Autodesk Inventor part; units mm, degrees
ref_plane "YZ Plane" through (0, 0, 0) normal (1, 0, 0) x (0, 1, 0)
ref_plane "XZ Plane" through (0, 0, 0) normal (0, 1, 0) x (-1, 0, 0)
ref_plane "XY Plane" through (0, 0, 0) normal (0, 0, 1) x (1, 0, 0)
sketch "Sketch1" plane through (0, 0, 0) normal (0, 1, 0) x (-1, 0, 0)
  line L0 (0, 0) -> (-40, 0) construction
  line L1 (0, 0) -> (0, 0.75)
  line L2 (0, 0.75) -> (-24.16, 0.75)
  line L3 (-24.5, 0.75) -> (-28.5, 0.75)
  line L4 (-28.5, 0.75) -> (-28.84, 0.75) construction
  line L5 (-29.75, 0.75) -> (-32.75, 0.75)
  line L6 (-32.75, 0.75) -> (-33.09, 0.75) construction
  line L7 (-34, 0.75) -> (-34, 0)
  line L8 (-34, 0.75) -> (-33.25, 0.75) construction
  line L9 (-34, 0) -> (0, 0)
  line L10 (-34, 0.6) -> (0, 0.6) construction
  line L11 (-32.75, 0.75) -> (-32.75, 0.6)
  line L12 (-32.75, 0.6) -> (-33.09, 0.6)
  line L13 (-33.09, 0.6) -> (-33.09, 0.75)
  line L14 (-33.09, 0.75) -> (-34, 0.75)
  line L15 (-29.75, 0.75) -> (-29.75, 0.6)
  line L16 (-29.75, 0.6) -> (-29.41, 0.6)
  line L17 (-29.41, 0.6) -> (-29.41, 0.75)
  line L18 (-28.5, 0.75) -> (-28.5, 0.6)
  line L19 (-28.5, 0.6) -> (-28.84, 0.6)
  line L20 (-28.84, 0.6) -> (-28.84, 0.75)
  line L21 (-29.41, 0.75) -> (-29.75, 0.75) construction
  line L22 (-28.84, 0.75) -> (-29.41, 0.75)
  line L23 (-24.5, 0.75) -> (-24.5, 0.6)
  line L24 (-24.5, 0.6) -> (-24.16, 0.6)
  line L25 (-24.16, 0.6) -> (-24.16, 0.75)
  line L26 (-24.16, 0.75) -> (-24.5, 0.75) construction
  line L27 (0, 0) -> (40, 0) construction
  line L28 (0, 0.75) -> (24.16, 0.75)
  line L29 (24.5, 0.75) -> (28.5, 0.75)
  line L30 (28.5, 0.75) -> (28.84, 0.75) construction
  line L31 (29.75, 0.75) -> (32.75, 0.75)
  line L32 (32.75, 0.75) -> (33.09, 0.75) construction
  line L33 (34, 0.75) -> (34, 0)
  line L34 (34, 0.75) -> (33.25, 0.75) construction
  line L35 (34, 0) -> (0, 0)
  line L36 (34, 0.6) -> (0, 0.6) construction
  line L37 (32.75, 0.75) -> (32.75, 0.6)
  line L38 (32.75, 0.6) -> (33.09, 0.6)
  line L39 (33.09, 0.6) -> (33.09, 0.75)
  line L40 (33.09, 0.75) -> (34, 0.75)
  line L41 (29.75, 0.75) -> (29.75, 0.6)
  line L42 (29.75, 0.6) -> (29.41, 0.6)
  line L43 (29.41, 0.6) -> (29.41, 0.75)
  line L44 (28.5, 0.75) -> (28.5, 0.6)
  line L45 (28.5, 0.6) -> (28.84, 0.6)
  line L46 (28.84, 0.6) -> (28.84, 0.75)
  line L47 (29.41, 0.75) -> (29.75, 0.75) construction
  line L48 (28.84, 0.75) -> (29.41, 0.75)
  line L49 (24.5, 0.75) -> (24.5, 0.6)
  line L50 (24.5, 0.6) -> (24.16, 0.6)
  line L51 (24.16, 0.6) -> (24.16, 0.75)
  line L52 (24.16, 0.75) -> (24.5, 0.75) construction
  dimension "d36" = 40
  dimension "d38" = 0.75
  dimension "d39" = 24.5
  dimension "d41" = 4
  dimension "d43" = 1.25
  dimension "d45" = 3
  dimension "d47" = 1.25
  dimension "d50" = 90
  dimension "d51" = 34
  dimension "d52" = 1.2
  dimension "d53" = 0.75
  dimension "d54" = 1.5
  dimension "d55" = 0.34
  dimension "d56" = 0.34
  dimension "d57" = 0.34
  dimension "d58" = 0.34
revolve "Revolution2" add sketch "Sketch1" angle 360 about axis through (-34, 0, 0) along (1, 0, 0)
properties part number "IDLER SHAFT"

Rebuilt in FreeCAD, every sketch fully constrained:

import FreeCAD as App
import Part
import Sketcher
from FreeCAD import Vector

doc = App.newDocument("Part")
params = doc.addObject("Spreadsheet::Sheet", "Params")
for row, (alias, value) in enumerate([
    ("sketch1_width", "3 mm"),
    ("sketch1_width2", "4 mm"),
    ("sketch1_width3", "0.34 mm"),
    ("sketch1_height", "0.75 mm"),
    ("sketch1_height2", "0.15 mm"),
    ("revolution_angle", "360 deg"),
], start=1):
    params.set(f"A{row}", alias)
    params.set(f"B{row}", "=" + value)
    params.setAlias(f"B{row}", alias)

body = doc.addObject("PartDesign::Body", "Body")

sketch1 = doc.addObject("Sketcher::SketchObject", "Sketch")
body.addObject(sketch1)
sketch1.AttachmentSupport = (doc.XZ_Plane, [""])
sketch1.MapMode = "FlatFace"
sketch1.addGeometry([
    Part.LineSegment(Vector(34, 0, 0), Vector(-34, 0, 0)),
    Part.LineSegment(Vector(-34, 0, 0), Vector(-34, 0.75, 0)),
    Part.LineSegment(Vector(-34, 0.75, 0), Vector(-33.09, 0.75, 0)),
    Part.LineSegment(Vector(-33.09, 0.75, 0), Vector(-33.09, 0.6, 0)),
    Part.LineSegment(Vector(-33.09, 0.6, 0), Vector(-32.75, 0.6, 0)),
    Part.LineSegment(Vector(-32.75, 0.6, 0), Vector(-32.75, 0.75, 0)),
    Part.LineSegment(Vector(-32.75, 0.75, 0), Vector(-29.75, 0.75, 0)),
    Part.LineSegment(Vector(-29.75, 0.75, 0), Vector(-29.75, 0.6, 0)),
    Part.LineSegment(Vector(-29.75, 0.6, 0), Vector(-29.41, 0.6, 0)),
    Part.LineSegment(Vector(-29.41, 0.6, 0), Vector(-29.41, 0.75, 0)),
    Part.LineSegment(Vector(-29.41, 0.75, 0), Vector(-28.84, 0.75, 0)),
    Part.LineSegment(Vector(-28.84, 0.75, 0), Vector(-28.84, 0.6, 0)),
    Part.LineSegment(Vector(-28.84, 0.6, 0), Vector(-28.5, 0.6, 0)),
    Part.LineSegment(Vector(-28.5, 0.6, 0), Vector(-28.5, 0.75, 0)),
    Part.LineSegment(Vector(-28.5, 0.75, 0), Vector(-24.5, 0.75, 0)),
    Part.LineSegment(Vector(-24.5, 0.75, 0), Vector(-24.5, 0.6, 0)),
    Part.LineSegment(Vector(-24.5, 0.6, 0), Vector(-24.16, 0.6, 0)),
    Part.LineSegment(Vector(-24.16, 0.6, 0), Vector(-24.16, 0.75, 0)),
    Part.LineSegment(Vector(-24.16, 0.75, 0), Vector(24.16, 0.75, 0)),
    Part.LineSegment(Vector(24.16, 0.75, 0), Vector(24.16, 0.6, 0)),
    Part.LineSegment(Vector(24.16, 0.6, 0), Vector(24.5, 0.6, 0)),
    Part.LineSegment(Vector(24.5, 0.6, 0), Vector(24.5, 0.75, 0)),
    Part.LineSegment(Vector(24.5, 0.75, 0), Vector(28.5, 0.75, 0)),
    Part.LineSegment(Vector(28.5, 0.75, 0), Vector(28.5, 0.6, 0)),
    Part.LineSegment(Vector(28.5, 0.6, 0), Vector(28.84, 0.6, 0)),
    Part.LineSegment(Vector(28.84, 0.6, 0), Vector(28.84, 0.75, 0)),
    Part.LineSegment(Vector(28.84, 0.75, 0), Vector(29.41, 0.75, 0)),
    Part.LineSegment(Vector(29.41, 0.75, 0), Vector(29.41, 0.6, 0)),
    Part.LineSegment(Vector(29.41, 0.6, 0), Vector(29.75, 0.6, 0)),
    Part.LineSegment(Vector(29.75, 0.6, 0), Vector(29.75, 0.75, 0)),
    Part.LineSegment(Vector(29.75, 0.75, 0), Vector(32.75, 0.75, 0)),
    Part.LineSegment(Vector(32.75, 0.75, 0), Vector(32.75, 0.6, 0)),
    Part.LineSegment(Vector(32.75, 0.6, 0), Vector(33.09, 0.6, 0)),
    Part.LineSegment(Vector(33.09, 0.6, 0), Vector(33.09, 0.75, 0)),
    Part.LineSegment(Vector(33.09, 0.75, 0), Vector(34, 0.75, 0)),
    Part.LineSegment(Vector(34, 0.75, 0), Vector(34, 0, 0)),
], False)
sketch1.addConstraint([
    Sketcher.Constraint("Coincident", 0, 2, 1, 1),
    Sketcher.Constraint("Coincident", 1, 2, 2, 1),
    Sketcher.Constraint("Coincident", 2, 2, 3, 1),
    Sketcher.Constraint("Coincident", 3, 2, 4, 1),
    Sketcher.Constraint("Coincident", 4, 2, 5, 1),
    Sketcher.Constraint("Coincident", 5, 2, 6, 1),
    Sketcher.Constraint("Coincident", 6, 2, 7, 1),
    Sketcher.Constraint("Coincident", 7, 2, 8, 1),
    Sketcher.Constraint("Coincident", 8, 2, 9, 1),
    Sketcher.Constraint("Coincident", 9, 2, 10, 1),
    Sketcher.Constraint("Coincident", 10, 2, 11, 1),
    Sketcher.Constraint("Coincident", 11, 2, 12, 1),
    Sketcher.Constraint("Coincident", 12, 2, 13, 1),
    Sketcher.Constraint("Coincident", 13, 2, 14, 1),
    Sketcher.Constraint("Coincident", 14, 2, 15, 1),
    Sketcher.Constraint("Coincident", 15, 2, 16, 1),
    Sketcher.Constraint("Coincident", 16, 2, 17, 1),
    Sketcher.Constraint("Coincident", 17, 2, 18, 1),
    Sketcher.Constraint("Coincident", 18, 2, 19, 1),
    Sketcher.Constraint("Coincident", 19, 2, 20, 1),
    Sketcher.Constraint("Coincident", 20, 2, 21, 1),
    Sketcher.Constraint("Coincident", 21, 2, 22, 1),
    Sketcher.Constraint("Coincident", 22, 2, 23, 1),
    Sketcher.Constraint("Coincident", 23, 2, 24, 1),
    Sketcher.Constraint("Coincident", 24, 2, 25, 1),
    Sketcher.Constraint("Coincident", 25, 2, 26, 1),
    Sketcher.Constraint("Coincident", 26, 2, 27, 1),
    Sketcher.Constraint("Coincident", 27, 2, 28, 1),
    Sketcher.Constraint("Coincident", 28, 2, 29, 1),
    Sketcher.Constraint("Coincident", 29, 2, 30, 1),
    Sketcher.Constraint("Coincident", 30, 2, 31, 1),
    Sketcher.Constraint("Coincident", 31, 2, 32, 1),
    Sketcher.Constraint("Coincident", 32, 2, 33, 1),
    Sketcher.Constraint("Coincident", 33, 2, 34, 1),
    Sketcher.Constraint("Coincident", 34, 2, 35, 1),
    Sketcher.Constraint("Coincident", 35, 2, 0, 1),
    Sketcher.Constraint("Horizontal", 0),
    Sketcher.Constraint("Vertical", 1),
    Sketcher.Constraint("Horizontal", 2),
    Sketcher.Constraint("Vertical", 3),
    Sketcher.Constraint("Horizontal", 4),
    Sketcher.Constraint("Vertical", 5),
    Sketcher.Constraint("Horizontal", 6),
    Sketcher.Constraint("Vertical", 7),
    Sketcher.Constraint("Horizontal", 8),
    Sketcher.Constraint("Vertical", 9),
    Sketcher.Constraint("Horizontal", 10),
    Sketcher.Constraint("Vertical", 11),
    Sketcher.Constraint("Horizontal", 12),
    Sketcher.Constraint("Vertical", 13),
    Sketcher.Constraint("Horizontal", 14),
    Sketcher.Constraint("Vertical", 15),
    Sketcher.Constraint("Horizontal", 16),
    Sketcher.Constraint("Vertical", 17),
    Sketcher.Constraint("Horizontal", 18),
    Sketcher.Constraint("Vertical", 19),
    Sketcher.Constraint("Horizontal", 20),
    Sketcher.Constraint("Vertical", 21),
    Sketcher.Constraint("Horizontal", 22),
    Sketcher.Constraint("Vertical", 23),
    Sketcher.Constraint("Horizontal", 24),
    Sketcher.Constraint("Vertical", 25),
    Sketcher.Constraint("Horizontal", 26),
    Sketcher.Constraint("Vertical", 27),
    Sketcher.Constraint("Horizontal", 28),
    Sketcher.Constraint("Vertical", 29),
    Sketcher.Constraint("Horizontal", 30),
    Sketcher.Constraint("Vertical", 31),
    Sketcher.Constraint("Horizontal", 32),
    Sketcher.Constraint("Vertical", 33),
    Sketcher.Constraint("Horizontal", 34),
    Sketcher.Constraint("Vertical", 35),
    Sketcher.Constraint("Symmetric", 0, 2, 35, 2, -1, 1),
    Sketcher.Constraint("Symmetric", 16, 2, 19, 2, -2),
    Sketcher.Constraint("Symmetric", 14, 2, 21, 2, -2),
    Sketcher.Constraint("Symmetric", 12, 2, 23, 2, -2),
    Sketcher.Constraint("Symmetric", 10, 2, 25, 2, -2),
    Sketcher.Constraint("Symmetric", 8, 2, 27, 2, -2),
    Sketcher.Constraint("Symmetric", 6, 2, 29, 2, -2),
    Sketcher.Constraint("Symmetric", 4, 2, 31, 2, -2),
    Sketcher.Constraint("Symmetric", 2, 2, 33, 2, -2),
    Sketcher.Constraint("Horizontal", 2, 2, 5, 2),
    Sketcher.Constraint("Horizontal", 4, 2, 7, 2),
    Sketcher.Constraint("Horizontal", 6, 2, 9, 2),
    Sketcher.Constraint("Horizontal", 8, 2, 11, 2),
    Sketcher.Constraint("Horizontal", 10, 2, 13, 2),
    Sketcher.Constraint("Horizontal", 12, 2, 15, 2),
    Sketcher.Constraint("Horizontal", 14, 2, 17, 2),
    Sketcher.Constraint("Equal", 4, 8),
    Sketcher.Constraint("Equal", 8, 12),
    Sketcher.Constraint("Equal", 12, 16),
    Sketcher.Constraint("DistanceX", 6, 1, 6, 2, 3.0),
    Sketcher.Constraint("DistanceX", 14, 1, 14, 2, 4.0),
    Sketcher.Constraint("DistanceX", 0, 2, -1, 1, 34.0),
    Sketcher.Constraint("DistanceX", 4, 1, 4, 2, 0.34),
    Sketcher.Constraint("DistanceY", 1, 1, 1, 2, 0.75),
    Sketcher.Constraint("DistanceX", 14, 2, -1, 1, 24.5),
    Sketcher.Constraint("DistanceX", 1, 2, 4, 2, 1.25),
    Sketcher.Constraint("DistanceY", 3, 2, 3, 1, 0.15),
])
sketch1.setExpression("Constraints[91]", "Params.sketch1_width")
sketch1.setExpression("Constraints[92]", "Params.sketch1_width2")
sketch1.setExpression("Constraints[94]", "Params.sketch1_width3")
sketch1.setExpression("Constraints[95]", "Params.sketch1_height")
sketch1.setExpression("Constraints[98]", "Params.sketch1_height2")
revolution = doc.addObject("PartDesign::Revolution", "Revolution")
body.addObject(revolution)
revolution.Profile = sketch1
revolution.ReferenceAxis = (sketch1, ["H_Axis"])
revolution.setExpression("Angle", "Params.revolution_angle")

doc.recompute()
